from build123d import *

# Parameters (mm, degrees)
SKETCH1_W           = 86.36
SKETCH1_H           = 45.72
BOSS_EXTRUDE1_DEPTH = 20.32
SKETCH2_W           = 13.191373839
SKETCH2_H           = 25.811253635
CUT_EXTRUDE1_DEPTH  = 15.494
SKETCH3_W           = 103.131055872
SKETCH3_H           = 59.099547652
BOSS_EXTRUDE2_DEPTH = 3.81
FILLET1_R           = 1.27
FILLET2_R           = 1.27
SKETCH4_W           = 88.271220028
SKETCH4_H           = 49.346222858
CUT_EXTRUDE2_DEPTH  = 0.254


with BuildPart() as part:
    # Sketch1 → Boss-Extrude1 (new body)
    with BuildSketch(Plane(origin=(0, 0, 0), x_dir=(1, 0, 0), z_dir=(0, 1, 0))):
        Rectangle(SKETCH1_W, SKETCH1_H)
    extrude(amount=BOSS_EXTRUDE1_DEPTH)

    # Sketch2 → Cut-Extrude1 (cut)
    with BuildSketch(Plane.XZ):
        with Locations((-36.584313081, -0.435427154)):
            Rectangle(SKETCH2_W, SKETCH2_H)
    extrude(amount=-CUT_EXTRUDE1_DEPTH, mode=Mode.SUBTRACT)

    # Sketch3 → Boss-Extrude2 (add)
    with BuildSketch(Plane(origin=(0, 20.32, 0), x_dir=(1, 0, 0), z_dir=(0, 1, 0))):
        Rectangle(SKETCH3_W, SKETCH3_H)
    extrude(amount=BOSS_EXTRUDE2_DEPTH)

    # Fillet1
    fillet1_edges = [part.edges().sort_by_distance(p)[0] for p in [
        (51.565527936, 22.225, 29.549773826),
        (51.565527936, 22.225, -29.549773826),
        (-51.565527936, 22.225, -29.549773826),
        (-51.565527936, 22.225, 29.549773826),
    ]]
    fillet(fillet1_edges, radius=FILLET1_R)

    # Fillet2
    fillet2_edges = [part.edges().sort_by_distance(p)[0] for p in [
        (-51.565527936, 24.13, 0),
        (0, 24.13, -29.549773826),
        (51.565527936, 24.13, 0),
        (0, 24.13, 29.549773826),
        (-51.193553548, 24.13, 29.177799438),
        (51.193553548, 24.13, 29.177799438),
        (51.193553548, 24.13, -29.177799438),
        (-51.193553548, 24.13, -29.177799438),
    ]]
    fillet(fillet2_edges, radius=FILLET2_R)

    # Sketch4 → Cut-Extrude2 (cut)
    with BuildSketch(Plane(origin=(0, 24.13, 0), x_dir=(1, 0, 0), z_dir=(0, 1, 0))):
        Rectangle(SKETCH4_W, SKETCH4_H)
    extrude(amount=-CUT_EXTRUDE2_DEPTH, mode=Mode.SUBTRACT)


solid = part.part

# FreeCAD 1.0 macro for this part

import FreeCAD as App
import Part
import Sketcher

V = App.Vector
Q = App.Units.Quantity


def edges_at(feature, points):
    """Names of the edges that pass closest to the given points."""
    edges = feature.Shape.Edges
    near = lambda p: min(range(len(edges)), key=lambda i: edges[i].distToShape(Part.Vertex(*p))[0])
    return sorted({f"Edge{near(p) + 1}" for p in points})


def add_polygon(sketch, points):
    """Adds a closed chain of lines whose ends are joined by coincident constraints."""
    first, n = sketch.GeometryCount, len(points)
    for a, b in zip(points, points[1:] + points[:1]):
        sketch.addGeometry(Part.LineSegment(App.Vector(*a, 0), App.Vector(*b, 0)), False)
    for i in range(n):
        sketch.addConstraint(Sketcher.Constraint("Coincident", first + i, 2, first + (i + 1) % n, 1))

doc = App.newDocument("Part")
params = doc.addObject("Spreadsheet::Sheet", "Params")
for row, (alias, value) in enumerate([
    ("sketch1_width", "3.4 in"),
    ("sketch1_height", "1.8 in"),
    ("pad1_length", "0.8 in"),
    ("pocket1_length", "0.61 in"),
    ("pad2_length", "0.15 in"),
    ("fillet_radius", "0.05 in"),
    ("fillet2_radius", "0.05 in"),
    ("pocket2_length", "0.01 in"),
], start=1):
    params.set(f"A{row}", alias)
    params.set(f"B{row}", "=" + value)
    params.setAlias(f"B{row}", alias)

body = doc.addObject("PartDesign::Body", "Body")

sketch1 = doc.addObject("Sketcher::SketchObject", "Sketch")
body.addObject(sketch1)
sketch1.AttachmentSupport = (doc.XZ_Plane, [""])
sketch1.MapMode = "FlatFace"
add_polygon(sketch1, [(-43, -23), (-43, 23), (43, 23), (43, -23)])
sketch1.addConstraint(Sketcher.Constraint("Vertical", 0))
sketch1.addConstraint(Sketcher.Constraint("Horizontal", 1))
sketch1.addConstraint(Sketcher.Constraint("Vertical", 2))
sketch1.addConstraint(Sketcher.Constraint("Horizontal", 3))
sketch1.addConstraint(Sketcher.Constraint("Symmetric", 0, 2, 2, 2, -1, 1))
sketch1.addConstraint(Sketcher.Constraint("DistanceX", 1, 1, 1, 2, Q("3.4 in")))
sketch1.addConstraint(Sketcher.Constraint("DistanceY", 0, 1, 0, 2, Q("1.8 in")))
sketch1.setExpression("Constraints[9]", "Params.sketch1_width")
sketch1.setExpression("Constraints[10]", "Params.sketch1_height")
pad1 = doc.addObject("PartDesign::Pad", "Pad")
body.addObject(pad1)
pad1.Profile = sketch1
pad1.setExpression("Length", "Params.pad1_length")
pad1.Reversed = True

sketch2 = doc.addObject("Sketcher::SketchObject", "Sketch001")
body.addObject(sketch2)
sketch2.AttachmentSupport = (doc.XZ_Plane, [""])
sketch2.MapMode = "FlatFace"
add_polygon(sketch2, [(-43, 12), (-43, -13), (-30, -13), (-30, 12)])
sketch2.addConstraint(Sketcher.Constraint("Vertical", 0))
sketch2.addConstraint(Sketcher.Constraint("Horizontal", 1))
sketch2.addConstraint(Sketcher.Constraint("Vertical", 2))
sketch2.addConstraint(Sketcher.Constraint("Horizontal", 3))
sketch2.addConstraint(Sketcher.Constraint("DistanceX", 0, 2, -1, 1, Q("1.7 in")))
sketch2.addConstraint(Sketcher.Constraint("DistanceY", -1, 1, 2, 2, 12.4702))
sketch2.addConstraint(Sketcher.Constraint("DistanceX", 1, 1, 1, 2, 13.191374))
sketch2.addConstraint(Sketcher.Constraint("DistanceY", 0, 2, 0, 1, 25.811254))
pocket1 = doc.addObject("PartDesign::Pocket", "Pocket")
body.addObject(pocket1)
pocket1.Profile = sketch2
pocket1.setExpression("Length", "Params.pocket1_length")

sketch3 = doc.addObject("Sketcher::SketchObject", "Sketch002")
body.addObject(sketch3)
sketch3.AttachmentSupport = (doc.XZ_Plane, [""])
sketch3.MapMode = "FlatFace"
sketch3.AttachmentOffset = App.Placement(V(0, 0, -0.8 * 25.4), App.Rotation())
add_polygon(sketch3, [(-52, -30), (-52, 30), (52, 30), (52, -30)])
sketch3.addConstraint(Sketcher.Constraint("Vertical", 0))
sketch3.addConstraint(Sketcher.Constraint("Horizontal", 1))
sketch3.addConstraint(Sketcher.Constraint("Vertical", 2))
sketch3.addConstraint(Sketcher.Constraint("Horizontal", 3))
sketch3.addConstraint(Sketcher.Constraint("Symmetric", 0, 2, 2, 2, -1, 1))
sketch3.addConstraint(Sketcher.Constraint("DistanceX", 1, 1, 1, 2, 103.131056))
sketch3.addConstraint(Sketcher.Constraint("DistanceY", 0, 1, 0, 2, 59.099548))
pad2 = doc.addObject("PartDesign::Pad", "Pad001")
body.addObject(pad2)
pad2.Profile = sketch3
pad2.setExpression("Length", "Params.pad2_length")
pad2.Reversed = True
doc.recompute()

fillet = doc.addObject("PartDesign::Fillet", "Fillet")
body.addObject(fillet)
fillet.Base = (pad2, edges_at(pad2, [
    (51.566, 22.225, 29.55),
    (51.566, 22.225, -29.55),
    (-51.566, 22.225, -29.55),
    (-51.566, 22.225, 29.55),
]))
fillet.setExpression("Radius", "Params.fillet_radius")
doc.recompute()

fillet2 = doc.addObject("PartDesign::Fillet", "Fillet001")
body.addObject(fillet2)
fillet2.Base = (fillet, edges_at(fillet, [
    (-51.566, 24.13, 0),
    (0, 24.13, -29.55),
    (51.566, 24.13, 0),
    (0, 24.13, 29.55),
    (-51.194, 24.13, 29.178),
    (51.194, 24.13, 29.178),
    (51.194, 24.13, -29.178),
    (-51.194, 24.13, -29.178),
]))
fillet2.setExpression("Radius", "Params.fillet2_radius")

sketch4 = doc.addObject("Sketcher::SketchObject", "Sketch003")
body.addObject(sketch4)
sketch4.AttachmentSupport = (doc.XZ_Plane, [""])
sketch4.MapMode = "FlatFace"
sketch4.AttachmentOffset = App.Placement(V(0, 0, -0.95 * 25.4), App.Rotation())
add_polygon(sketch4, [(-44, -25), (-44, 25), (44, 25), (44, -25)])
sketch4.addConstraint(Sketcher.Constraint("Vertical", 0))
sketch4.addConstraint(Sketcher.Constraint("Horizontal", 1))
sketch4.addConstraint(Sketcher.Constraint("Vertical", 2))
sketch4.addConstraint(Sketcher.Constraint("Horizontal", 3))
sketch4.addConstraint(Sketcher.Constraint("Symmetric", 0, 2, 2, 2, -1, 1))
sketch4.addConstraint(Sketcher.Constraint("DistanceX", 1, 1, 1, 2, 88.27122))
sketch4.addConstraint(Sketcher.Constraint("DistanceY", 0, 1, 0, 2, 49.346223))
pocket2 = doc.addObject("PartDesign::Pocket", "Pocket001")
body.addObject(pocket2)
pocket2.Profile = sketch4
pocket2.setExpression("Length", "Params.pocket2_length")
pocket2.Reversed = True

doc.recompute()
